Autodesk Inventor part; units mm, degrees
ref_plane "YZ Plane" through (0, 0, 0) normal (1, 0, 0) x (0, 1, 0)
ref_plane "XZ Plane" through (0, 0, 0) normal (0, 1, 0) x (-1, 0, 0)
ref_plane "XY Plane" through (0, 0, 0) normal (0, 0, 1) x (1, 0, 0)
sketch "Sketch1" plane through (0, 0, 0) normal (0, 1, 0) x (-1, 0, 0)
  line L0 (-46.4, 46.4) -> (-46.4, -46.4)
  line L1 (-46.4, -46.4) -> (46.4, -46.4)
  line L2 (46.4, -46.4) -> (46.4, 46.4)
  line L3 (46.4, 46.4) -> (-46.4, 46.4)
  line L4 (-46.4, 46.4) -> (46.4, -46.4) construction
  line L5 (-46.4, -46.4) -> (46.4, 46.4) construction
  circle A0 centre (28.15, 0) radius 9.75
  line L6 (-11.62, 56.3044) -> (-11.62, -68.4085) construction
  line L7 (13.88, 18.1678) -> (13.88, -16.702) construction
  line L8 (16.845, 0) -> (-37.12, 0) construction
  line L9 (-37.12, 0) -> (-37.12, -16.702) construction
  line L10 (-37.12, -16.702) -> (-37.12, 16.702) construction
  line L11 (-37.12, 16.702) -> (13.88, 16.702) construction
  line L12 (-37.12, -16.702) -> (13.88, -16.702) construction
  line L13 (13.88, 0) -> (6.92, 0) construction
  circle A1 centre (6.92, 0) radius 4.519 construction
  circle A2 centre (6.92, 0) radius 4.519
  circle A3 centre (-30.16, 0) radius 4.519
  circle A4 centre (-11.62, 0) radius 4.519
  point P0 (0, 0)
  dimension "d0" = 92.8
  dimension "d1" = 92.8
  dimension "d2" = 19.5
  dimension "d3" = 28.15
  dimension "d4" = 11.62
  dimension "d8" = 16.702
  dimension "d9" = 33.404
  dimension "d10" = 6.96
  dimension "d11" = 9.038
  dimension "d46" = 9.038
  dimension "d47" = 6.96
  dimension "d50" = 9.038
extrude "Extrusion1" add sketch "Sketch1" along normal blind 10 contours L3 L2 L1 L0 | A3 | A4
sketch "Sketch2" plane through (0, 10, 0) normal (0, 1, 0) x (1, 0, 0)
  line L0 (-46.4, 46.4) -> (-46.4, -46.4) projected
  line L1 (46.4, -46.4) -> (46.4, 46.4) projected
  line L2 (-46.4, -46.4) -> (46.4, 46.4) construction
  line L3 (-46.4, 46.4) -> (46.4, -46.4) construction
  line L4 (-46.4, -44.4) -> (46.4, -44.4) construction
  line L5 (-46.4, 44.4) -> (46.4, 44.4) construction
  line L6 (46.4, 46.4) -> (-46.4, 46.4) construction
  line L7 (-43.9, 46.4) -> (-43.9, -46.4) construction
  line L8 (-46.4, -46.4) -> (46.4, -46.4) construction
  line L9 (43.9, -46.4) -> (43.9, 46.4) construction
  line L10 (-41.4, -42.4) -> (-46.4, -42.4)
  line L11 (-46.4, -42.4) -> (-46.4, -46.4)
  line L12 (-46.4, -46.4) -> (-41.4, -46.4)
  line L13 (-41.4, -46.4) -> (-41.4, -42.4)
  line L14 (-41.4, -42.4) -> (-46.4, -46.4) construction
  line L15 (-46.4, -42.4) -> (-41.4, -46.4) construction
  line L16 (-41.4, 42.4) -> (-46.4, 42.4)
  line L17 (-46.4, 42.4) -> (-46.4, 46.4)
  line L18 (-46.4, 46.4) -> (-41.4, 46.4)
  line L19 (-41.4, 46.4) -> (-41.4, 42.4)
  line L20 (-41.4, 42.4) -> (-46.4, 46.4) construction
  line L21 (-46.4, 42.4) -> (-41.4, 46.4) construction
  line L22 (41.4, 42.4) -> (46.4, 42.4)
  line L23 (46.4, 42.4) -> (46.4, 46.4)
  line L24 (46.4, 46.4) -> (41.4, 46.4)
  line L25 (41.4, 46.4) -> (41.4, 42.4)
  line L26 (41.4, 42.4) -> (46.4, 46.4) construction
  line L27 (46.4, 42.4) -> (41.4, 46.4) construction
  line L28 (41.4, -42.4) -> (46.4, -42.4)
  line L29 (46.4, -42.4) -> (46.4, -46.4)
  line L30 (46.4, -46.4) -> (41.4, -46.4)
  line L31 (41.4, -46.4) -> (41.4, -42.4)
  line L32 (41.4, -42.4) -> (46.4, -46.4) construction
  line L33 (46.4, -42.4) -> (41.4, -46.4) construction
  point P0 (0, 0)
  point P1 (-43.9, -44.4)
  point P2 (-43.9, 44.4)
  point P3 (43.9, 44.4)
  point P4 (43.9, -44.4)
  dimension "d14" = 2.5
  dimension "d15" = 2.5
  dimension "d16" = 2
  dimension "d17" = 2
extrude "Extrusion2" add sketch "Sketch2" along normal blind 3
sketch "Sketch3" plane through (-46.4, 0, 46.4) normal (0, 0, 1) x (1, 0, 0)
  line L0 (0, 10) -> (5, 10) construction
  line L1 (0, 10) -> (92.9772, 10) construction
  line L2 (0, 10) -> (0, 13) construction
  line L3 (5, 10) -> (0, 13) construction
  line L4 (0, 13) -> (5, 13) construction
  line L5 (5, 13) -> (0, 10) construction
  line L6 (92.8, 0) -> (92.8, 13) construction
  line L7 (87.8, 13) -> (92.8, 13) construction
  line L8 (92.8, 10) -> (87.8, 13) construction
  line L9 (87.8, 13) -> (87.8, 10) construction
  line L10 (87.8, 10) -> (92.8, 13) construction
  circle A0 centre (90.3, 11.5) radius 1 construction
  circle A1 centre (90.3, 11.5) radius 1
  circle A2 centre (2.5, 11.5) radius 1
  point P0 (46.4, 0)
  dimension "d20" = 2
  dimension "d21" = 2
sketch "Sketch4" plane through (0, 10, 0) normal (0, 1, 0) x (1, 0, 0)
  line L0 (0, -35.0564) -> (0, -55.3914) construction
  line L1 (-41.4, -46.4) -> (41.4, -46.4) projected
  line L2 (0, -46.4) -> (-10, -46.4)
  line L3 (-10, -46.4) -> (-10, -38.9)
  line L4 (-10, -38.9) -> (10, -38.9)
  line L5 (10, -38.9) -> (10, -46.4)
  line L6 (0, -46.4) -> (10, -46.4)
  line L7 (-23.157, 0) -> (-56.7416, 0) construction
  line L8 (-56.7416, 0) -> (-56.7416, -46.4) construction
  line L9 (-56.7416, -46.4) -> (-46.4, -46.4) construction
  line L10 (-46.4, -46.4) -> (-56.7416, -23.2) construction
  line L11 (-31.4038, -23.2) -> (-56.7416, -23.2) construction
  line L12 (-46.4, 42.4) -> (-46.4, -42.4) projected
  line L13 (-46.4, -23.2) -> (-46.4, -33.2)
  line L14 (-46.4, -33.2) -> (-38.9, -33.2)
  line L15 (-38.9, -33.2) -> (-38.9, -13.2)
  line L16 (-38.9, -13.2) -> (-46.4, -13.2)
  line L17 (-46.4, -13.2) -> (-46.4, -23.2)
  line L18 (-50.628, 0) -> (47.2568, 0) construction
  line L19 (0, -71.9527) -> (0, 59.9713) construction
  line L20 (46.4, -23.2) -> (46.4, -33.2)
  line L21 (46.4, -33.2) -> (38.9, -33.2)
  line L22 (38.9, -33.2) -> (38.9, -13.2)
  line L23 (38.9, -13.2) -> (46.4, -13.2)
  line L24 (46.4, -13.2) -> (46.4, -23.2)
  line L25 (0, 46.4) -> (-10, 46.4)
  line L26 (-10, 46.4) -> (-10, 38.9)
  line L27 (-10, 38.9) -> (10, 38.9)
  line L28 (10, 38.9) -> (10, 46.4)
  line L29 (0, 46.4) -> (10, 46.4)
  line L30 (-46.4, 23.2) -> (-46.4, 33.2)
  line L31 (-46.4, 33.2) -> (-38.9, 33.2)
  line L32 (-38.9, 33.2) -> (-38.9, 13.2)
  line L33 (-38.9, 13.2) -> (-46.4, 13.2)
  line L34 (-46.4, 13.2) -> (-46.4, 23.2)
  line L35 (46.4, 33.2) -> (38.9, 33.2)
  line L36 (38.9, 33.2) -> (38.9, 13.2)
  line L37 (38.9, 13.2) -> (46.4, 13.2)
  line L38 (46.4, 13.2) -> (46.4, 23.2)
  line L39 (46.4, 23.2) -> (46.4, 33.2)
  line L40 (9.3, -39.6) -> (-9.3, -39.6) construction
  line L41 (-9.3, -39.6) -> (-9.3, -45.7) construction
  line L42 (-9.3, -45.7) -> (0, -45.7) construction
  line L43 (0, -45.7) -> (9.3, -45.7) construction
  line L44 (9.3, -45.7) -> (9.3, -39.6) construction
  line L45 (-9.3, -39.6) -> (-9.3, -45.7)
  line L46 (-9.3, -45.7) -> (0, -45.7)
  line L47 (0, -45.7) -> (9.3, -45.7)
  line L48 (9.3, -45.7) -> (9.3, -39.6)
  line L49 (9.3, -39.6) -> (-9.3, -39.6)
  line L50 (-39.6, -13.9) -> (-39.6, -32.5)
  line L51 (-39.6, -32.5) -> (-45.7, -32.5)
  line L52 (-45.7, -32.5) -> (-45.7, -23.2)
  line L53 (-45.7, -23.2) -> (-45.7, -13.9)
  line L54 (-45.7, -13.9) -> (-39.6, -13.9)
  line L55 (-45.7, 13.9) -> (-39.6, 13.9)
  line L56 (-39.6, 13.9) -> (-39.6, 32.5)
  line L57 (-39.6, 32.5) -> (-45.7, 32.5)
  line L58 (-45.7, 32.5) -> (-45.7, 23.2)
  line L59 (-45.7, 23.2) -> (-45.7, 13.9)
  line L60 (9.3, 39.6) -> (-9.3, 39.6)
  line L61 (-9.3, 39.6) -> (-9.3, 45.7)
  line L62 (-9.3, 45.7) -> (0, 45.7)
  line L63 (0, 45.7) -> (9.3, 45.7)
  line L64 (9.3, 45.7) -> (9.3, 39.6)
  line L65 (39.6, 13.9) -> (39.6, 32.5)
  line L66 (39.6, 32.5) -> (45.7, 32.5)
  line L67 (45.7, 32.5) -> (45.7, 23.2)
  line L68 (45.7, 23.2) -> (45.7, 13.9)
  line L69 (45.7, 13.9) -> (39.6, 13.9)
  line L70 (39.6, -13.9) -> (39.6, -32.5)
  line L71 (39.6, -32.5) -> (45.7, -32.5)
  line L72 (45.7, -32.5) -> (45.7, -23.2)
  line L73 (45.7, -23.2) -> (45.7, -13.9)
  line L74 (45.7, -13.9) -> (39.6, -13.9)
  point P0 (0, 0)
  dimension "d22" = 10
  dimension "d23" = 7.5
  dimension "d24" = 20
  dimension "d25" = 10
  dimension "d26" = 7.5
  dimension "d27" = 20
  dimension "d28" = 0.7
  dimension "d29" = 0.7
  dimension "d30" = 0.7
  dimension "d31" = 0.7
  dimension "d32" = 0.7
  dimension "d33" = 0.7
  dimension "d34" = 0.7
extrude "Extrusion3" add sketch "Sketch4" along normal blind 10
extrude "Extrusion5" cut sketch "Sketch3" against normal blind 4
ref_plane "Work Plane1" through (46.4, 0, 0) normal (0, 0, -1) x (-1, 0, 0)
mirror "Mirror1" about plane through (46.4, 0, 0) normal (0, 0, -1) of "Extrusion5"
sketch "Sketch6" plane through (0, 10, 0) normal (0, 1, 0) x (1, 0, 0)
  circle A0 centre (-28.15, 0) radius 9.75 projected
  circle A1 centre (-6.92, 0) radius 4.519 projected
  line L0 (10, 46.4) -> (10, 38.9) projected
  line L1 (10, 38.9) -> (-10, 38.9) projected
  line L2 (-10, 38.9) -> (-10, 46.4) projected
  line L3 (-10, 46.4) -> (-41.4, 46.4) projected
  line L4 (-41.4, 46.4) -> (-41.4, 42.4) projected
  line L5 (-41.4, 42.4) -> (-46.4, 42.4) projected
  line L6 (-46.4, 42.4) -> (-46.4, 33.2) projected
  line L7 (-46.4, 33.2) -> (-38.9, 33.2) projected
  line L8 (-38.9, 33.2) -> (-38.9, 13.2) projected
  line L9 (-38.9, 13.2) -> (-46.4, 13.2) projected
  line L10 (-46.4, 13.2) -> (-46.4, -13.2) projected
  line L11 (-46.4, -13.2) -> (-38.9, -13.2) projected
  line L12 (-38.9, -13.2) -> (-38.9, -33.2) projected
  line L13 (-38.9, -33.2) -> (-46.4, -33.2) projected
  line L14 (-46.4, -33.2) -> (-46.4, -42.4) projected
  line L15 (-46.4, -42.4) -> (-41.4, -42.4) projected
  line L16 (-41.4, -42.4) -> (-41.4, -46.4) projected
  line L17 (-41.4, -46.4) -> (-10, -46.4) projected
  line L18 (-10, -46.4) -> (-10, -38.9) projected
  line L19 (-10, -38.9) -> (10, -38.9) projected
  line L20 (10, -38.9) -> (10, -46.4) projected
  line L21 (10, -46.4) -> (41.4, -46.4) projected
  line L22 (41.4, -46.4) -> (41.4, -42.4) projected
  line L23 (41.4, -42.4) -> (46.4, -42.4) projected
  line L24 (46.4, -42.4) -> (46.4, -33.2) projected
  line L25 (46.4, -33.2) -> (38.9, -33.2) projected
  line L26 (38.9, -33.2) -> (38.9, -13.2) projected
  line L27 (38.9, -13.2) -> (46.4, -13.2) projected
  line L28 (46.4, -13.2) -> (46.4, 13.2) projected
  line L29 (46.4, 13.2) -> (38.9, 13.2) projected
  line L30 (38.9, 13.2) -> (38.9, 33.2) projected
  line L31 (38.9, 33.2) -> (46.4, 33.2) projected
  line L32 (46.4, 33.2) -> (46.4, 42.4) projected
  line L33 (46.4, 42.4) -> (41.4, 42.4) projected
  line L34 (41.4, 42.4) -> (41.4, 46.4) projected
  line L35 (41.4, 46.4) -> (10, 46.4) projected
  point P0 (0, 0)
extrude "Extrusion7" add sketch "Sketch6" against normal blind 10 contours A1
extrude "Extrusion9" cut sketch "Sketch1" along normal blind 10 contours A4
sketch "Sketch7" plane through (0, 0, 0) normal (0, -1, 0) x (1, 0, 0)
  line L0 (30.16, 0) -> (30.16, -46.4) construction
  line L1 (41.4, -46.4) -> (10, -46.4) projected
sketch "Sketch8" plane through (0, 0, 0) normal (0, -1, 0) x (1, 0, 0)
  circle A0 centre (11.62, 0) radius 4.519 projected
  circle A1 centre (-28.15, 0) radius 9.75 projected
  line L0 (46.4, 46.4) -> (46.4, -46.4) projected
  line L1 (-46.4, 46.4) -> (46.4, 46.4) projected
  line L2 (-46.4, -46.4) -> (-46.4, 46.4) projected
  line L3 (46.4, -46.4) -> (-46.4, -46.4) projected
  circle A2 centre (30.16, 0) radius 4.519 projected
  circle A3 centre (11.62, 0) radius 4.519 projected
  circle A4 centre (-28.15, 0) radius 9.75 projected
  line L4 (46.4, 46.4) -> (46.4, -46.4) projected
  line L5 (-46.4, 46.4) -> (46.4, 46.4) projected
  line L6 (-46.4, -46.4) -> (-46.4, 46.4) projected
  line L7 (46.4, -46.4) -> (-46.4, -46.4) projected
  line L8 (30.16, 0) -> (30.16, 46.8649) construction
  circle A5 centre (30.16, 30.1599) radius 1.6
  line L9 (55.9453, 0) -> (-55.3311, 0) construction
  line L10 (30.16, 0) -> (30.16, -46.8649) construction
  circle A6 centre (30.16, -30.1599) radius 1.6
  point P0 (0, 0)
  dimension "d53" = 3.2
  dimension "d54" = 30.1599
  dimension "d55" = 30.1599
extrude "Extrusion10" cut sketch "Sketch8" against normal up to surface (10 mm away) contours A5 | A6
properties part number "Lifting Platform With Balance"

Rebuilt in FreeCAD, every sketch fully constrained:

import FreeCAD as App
import Part
import Sketcher

V = App.Vector
Q = App.Units.Quantity


def add_polygon(sketch, points):
    """Adds a closed chain of lines whose ends are joined by coincident constraints."""
    first, n = sketch.GeometryCount, len(points)
    for a, b in zip(points, points[1:] + points[:1]):
        sketch.addGeometry(Part.LineSegment(App.Vector(*a, 0), App.Vector(*b, 0)), False)
    for i in range(n):
        sketch.addConstraint(Sketcher.Constraint("Coincident", first + i, 2, first + (i + 1) % n, 1))

doc = App.newDocument("Part")
body = doc.addObject("PartDesign::Body", "Body")

sketch1 = body.newObject("Sketcher::SketchObject", "Sketch")
sketch1.AttachmentSupport = (doc.getObject("XZ_Plane"), [""])
sketch1.MapMode = "FlatFace"
add_polygon(sketch1, [(-46.4, 46.4), (46.4, 46.4), (46.4, -46.4), (-46.4, -46.4)])
sketch1.addGeometry(Part.Circle(V(-6.9, 0, 0), V(0, 0, 1), 4.5), False)
sketch1.addGeometry(Part.Circle(V(-28.1, 0, 0), V(0, 0, 1), 9.8), False)
sketch1.addConstraint(Sketcher.Constraint("Horizontal", 0))
sketch1.addConstraint(Sketcher.Constraint("Vertical", 1))
sketch1.addConstraint(Sketcher.Constraint("Horizontal", 2))
sketch1.addConstraint(Sketcher.Constraint("Vertical", 3))
sketch1.addConstraint(Sketcher.Constraint("Symmetric", 0, 2, 2, 2, -1, 1))
sketch1.addConstraint(Sketcher.Constraint("PointOnObject", 4, 3, -1))
sketch1.addConstraint(Sketcher.Constraint("PointOnObject", 5, 3, -1))
sketch1.addConstraint(Sketcher.Constraint("Equal", 2, 1))
sketch1.addConstraint(Sketcher.Constraint("Diameter", 5, Q("19.5 mm")))
sketch1.addConstraint(Sketcher.Constraint("Diameter", 4, Q("9.038 mm")))
sketch1.addConstraint(Sketcher.Constraint("DistanceX", 0, 1, 0, 2, Q("92.8 mm")))
sketch1.addConstraint(Sketcher.Constraint("DistanceX", 5, 3, -1, 1, Q("28.15 mm")))
sketch1.addConstraint(Sketcher.Constraint("DistanceX", 4, 3, -1, 1, Q("6.92 mm")))
pad1 = body.newObject("PartDesign::Pad", "Pad")
pad1.Profile = sketch1
pad1.Length = 10
pad1.Reversed = True

sketch2 = body.newObject("Sketcher::SketchObject", "Sketch001")
sketch2.AttachmentSupport = (doc.getObject("XZ_Plane"), [""])
sketch2.MapMode = "FlatFace"
sketch2.AttachmentOffset = App.Placement(V(0, 0, -10), App.Rotation())
add_polygon(sketch2, [(-41.4, -46.4), (-46.4, -46.4), (-46.4, -42.4), (-41.4, -42.4)])
add_polygon(sketch2, [(-41.4, 42.4), (-46.4, 42.4), (-46.4, 46.4), (-41.4, 46.4)])
add_polygon(sketch2, [(41.4, 46.4), (46.4, 46.4), (46.4, 42.4), (41.4, 42.4)])
add_polygon(sketch2, [(41.4, -42.4), (46.4, -42.4), (46.4, -46.4), (41.4, -46.4)])
sketch2.addConstraint(Sketcher.Constraint("Horizontal", 0))
sketch2.addConstraint(Sketcher.Constraint("Vertical", 1))
sketch2.addConstraint(Sketcher.Constraint("Horizontal", 2))
sketch2.addConstraint(Sketcher.Constraint("Vertical", 3))
sketch2.addConstraint(Sketcher.Constraint("Horizontal", 4))
sketch2.addConstraint(Sketcher.Constraint("Vertical", 5))
sketch2.addConstraint(Sketcher.Constraint("Horizontal", 6))
sketch2.addConstraint(Sketcher.Constraint("Vertical", 7))
sketch2.addConstraint(Sketcher.Constraint("Horizontal", 8))
sketch2.addConstraint(Sketcher.Constraint("Vertical", 9))
sketch2.addConstraint(Sketcher.Constraint("Horizontal", 10))
sketch2.addConstraint(Sketcher.Constraint("Vertical", 11))
sketch2.addConstraint(Sketcher.Constraint("Horizontal", 12))
sketch2.addConstraint(Sketcher.Constraint("Vertical", 13))
sketch2.addConstraint(Sketcher.Constraint("Horizontal", 14))
sketch2.addConstraint(Sketcher.Constraint("Vertical", 15))
sketch2.addConstraint(Sketcher.Constraint("Symmetric", 0, 2, 8, 2, -1, 1))
sketch2.addConstraint(Sketcher.Constraint("Symmetric", 2, 2, 10, 2, -1, 1))
sketch2.addConstraint(Sketcher.Constraint("Symmetric", 4, 2, 12, 2, -1, 1))
sketch2.addConstraint(Sketcher.Constraint("Symmetric", 6, 2, 14, 2, -1, 1))
sketch2.addConstraint(Sketcher.Constraint("Symmetric", 5, 2, 8, 2, -2))
sketch2.addConstraint(Sketcher.Constraint("Symmetric", 7, 2, 10, 2, -2))
sketch2.addConstraint(Sketcher.Constraint("DistanceX", 0, 2, 0, 1, Q("5 mm")))
sketch2.addConstraint(Sketcher.Constraint("DistanceY", 1, 1, 1, 2, Q("4 mm")))
sketch2.addConstraint(Sketcher.Constraint("DistanceX", 0, 2, -1, 1, Q("46.4 mm")))
sketch2.addConstraint(Sketcher.Constraint("DistanceY", 0, 2, -1, 1, Q("46.4 mm")))
pad2 = body.newObject("PartDesign::Pad", "Pad001")
pad2.Profile = sketch2
pad2.Length = 3
pad2.Reversed = True

sketch3 = body.newObject("Sketcher::SketchObject", "Sketch002")
sketch3.AttachmentSupport = (doc.getObject("XZ_Plane"), [""])
sketch3.MapMode = "FlatFace"
sketch3.AttachmentOffset = App.Placement(V(0, 0, -10), App.Rotation())
add_polygon(sketch3, [(-10, 39), (-10, 46), (10, 46), (10, 39)])
add_polygon(sketch3, [(-9, 46), (-9, 40), (9, 40), (9, 46)])
add_polygon(sketch3, [(-39, -33), (-46, -33), (-46, -13), (-39, -13)])
add_polygon(sketch3, [(-40, -14), (-46, -14), (-46, -32), (-40, -32)])
add_polygon(sketch3, [(-39, 13), (-46, 13), (-46, 33), (-39, 33)])
add_polygon(sketch3, [(-46, 14), (-40, 14), (-40, 32), (-46, 32)])
add_polygon(sketch3, [(46, 33), (46, 13), (39, 13), (39, 33)])
add_polygon(sketch3, [(40, 32), (40, 14), (46, 14), (46, 32)])
add_polygon(sketch3, [(10, -46), (-10, -46), (-10, -39), (10, -39)])
add_polygon(sketch3, [(9, -46), (9, -40), (-9, -40), (-9, -46)])
add_polygon(sketch3, [(46, -13), (46, -33), (39, -33), (39, -13)])
add_polygon(sketch3, [(46, -14), (40, -14), (40, -32), (46, -32)])
sketch3.addConstraint(Sketcher.Constraint("Vertical", 0))
sketch3.addConstraint(Sketcher.Constraint("Horizontal", 1))
sketch3.addConstraint(Sketcher.Constraint("Vertical", 2))
sketch3.addConstraint(Sketcher.Constraint("Horizontal", 3))
sketch3.addConstraint(Sketcher.Constraint("Vertical", 4))
sketch3.addConstraint(Sketcher.Constraint("Horizontal", 5))
sketch3.addConstraint(Sketcher.Constraint("Vertical", 6))
sketch3.addConstraint(Sketcher.Constraint("Horizontal", 7))
sketch3.addConstraint(Sketcher.Constraint("Horizontal", 8))
sketch3.addConstraint(Sketcher.Constraint("Vertical", 9))
sketch3.addConstraint(Sketcher.Constraint("Horizontal", 10))
sketch3.addConstraint(Sketcher.Constraint("Vertical", 11))
sketch3.addConstraint(Sketcher.Constraint("Horizontal", 12))
sketch3.addConstraint(Sketcher.Constraint("Vertical", 13))
sketch3.addConstraint(Sketcher.Constraint("Horizontal", 14))
sketch3.addConstraint(Sketcher.Constraint("Vertical", 15))
sketch3.addConstraint(Sketcher.Constraint("Horizontal", 16))
sketch3.addConstraint(Sketcher.Constraint("Vertical", 17))
sketch3.addConstraint(Sketcher.Constraint("Horizontal", 18))
sketch3.addConstraint(Sketcher.Constraint("Vertical", 19))
sketch3.addConstraint(Sketcher.Constraint("Horizontal", 20))
sketch3.addConstraint(Sketcher.Constraint("Vertical", 21))
sketch3.addConstraint(Sketcher.Constraint("Horizontal", 22))
sketch3.addConstraint(Sketcher.Constraint("Vertical", 23))
sketch3.addConstraint(Sketcher.Constraint("Vertical", 24))
sketch3.addConstraint(Sketcher.Constraint("Horizontal", 25))
sketch3.addConstraint(Sketcher.Constraint("Vertical", 26))
sketch3.addConstraint(Sketcher.Constraint("Horizontal", 27))
sketch3.addConstraint(Sketcher.Constraint("Vertical", 28))
sketch3.addConstraint(Sketcher.Constraint("Horizontal", 29))
sketch3.addConstraint(Sketcher.Constraint("Vertical", 30))
sketch3.addConstraint(Sketcher.Constraint("Horizontal", 31))
sketch3.addConstraint(Sketcher.Constraint("Horizontal", 32))
sketch3.addConstraint(Sketcher.Constraint("Vertical", 33))
sketch3.addConstraint(Sketcher.Constraint("Horizontal", 34))
sketch3.addConstraint(Sketcher.Constraint("Vertical", 35))
sketch3.addConstraint(Sketcher.Constraint("Vertical", 36))
sketch3.addConstraint(Sketcher.Constraint("Horizontal", 37))
sketch3.addConstraint(Sketcher.Constraint("Vertical", 38))
sketch3.addConstraint(Sketcher.Constraint("Horizontal", 39))
sketch3.addConstraint(Sketcher.Constraint("Vertical", 40))
sketch3.addConstraint(Sketcher.Constraint("Horizontal", 41))
sketch3.addConstraint(Sketcher.Constraint("Vertical", 42))
sketch3.addConstraint(Sketcher.Constraint("Horizontal", 43))
sketch3.addConstraint(Sketcher.Constraint("Horizontal", 44))
sketch3.addConstraint(Sketcher.Constraint("Vertical", 45))
sketch3.addConstraint(Sketcher.Constraint("Horizontal", 46))
sketch3.addConstraint(Sketcher.Constraint("Vertical", 47))
sketch3.addConstraint(Sketcher.Constraint("Symmetric", 9, 2, 24, 2, -1, 1))
sketch3.addConstraint(Sketcher.Constraint("Symmetric", 11, 2, 26, 2, -1, 1))
sketch3.addConstraint(Sketcher.Constraint("Symmetric", 15, 2, 28, 2, -1, 1))
sketch3.addConstraint(Sketcher.Constraint("Symmetric", 13, 2, 30, 2, -1, 1))
sketch3.addConstraint(Sketcher.Constraint("Symmetric", 1, 2, 32, 2, -1, 1))
sketch3.addConstraint(Sketcher.Constraint("Symmetric", 3, 2, 34, 2, -1, 1))
sketch3.addConstraint(Sketcher.Constraint("Symmetric", 4, 2, 36, 2, -1, 1))
sketch3.addConstraint(Sketcher.Constraint("Symmetric", 6, 2, 38, 2, -1, 1))
sketch3.addConstraint(Sketcher.Constraint("Symmetric", 17, 2, 40, 2, -1, 1))
sketch3.addConstraint(Sketcher.Constraint("Symmetric", 19, 2, 42, 2, -1, 1))
sketch3.addConstraint(Sketcher.Constraint("Symmetric", 20, 2, 44, 2, -1, 1))
sketch3.addConstraint(Sketcher.Constraint("Symmetric", 22, 2, 46, 2, -1, 1))
sketch3.addConstraint(Sketcher.Constraint("Symmetric", 16, 2, 24, 2, -2))
sketch3.addConstraint(Sketcher.Constraint("Symmetric", 18, 2, 26, 2, -2))
sketch3.addConstraint(Sketcher.Constraint("Symmetric", 20, 2, 28, 2, -2))
sketch3.addConstraint(Sketcher.Constraint("Symmetric", 22, 2, 30, 2, -2))
sketch3.addConstraint(Sketcher.Constraint("Vertical", 3, 2, 32, 2))
sketch3.addConstraint(Sketcher.Constraint("Vertical", 6, 2, 36, 2))
sketch3.addConstraint(Sketcher.Constraint("Equal", 43, 0))
sketch3.addConstraint(Sketcher.Constraint("Equal", 46, 4))
sketch3.addConstraint(Sketcher.Constraint("Equal", 34, 9))
sketch3.addConstraint(Sketcher.Constraint("Equal", 39, 13))
sketch3.addConstraint(Sketcher.Constraint("DistanceX", 1, 1, 1, 2, Q("20 mm")))
sketch3.addConstraint(Sketcher.Constraint("DistanceX", 8, 2, 8, 1, Q("7.5 mm")))
sketch3.addConstraint(Sketcher.Constraint("DistanceX", 3, 2, 4, 2, Q("0.7 mm")))
sketch3.addConstraint(Sketcher.Constraint("DistanceY", 3, 2, 4, 2, Q("0.7 mm")))
sketch3.addConstraint(Sketcher.Constraint("DistanceY", 6, 2, 1, 2, Q("0.7 mm")))
sketch3.addConstraint(Sketcher.Constraint("DistanceX", 9, 2, 12, 2, Q("0.7 mm")))
sketch3.addConstraint(Sketcher.Constraint("DistanceY", 12, 2, 9, 2, Q("0.7 mm")))
sketch3.addConstraint(Sketcher.Constraint("DistanceY", 28, 2, 2, 2, Q("25 mm")))
sketch3.addConstraint(Sketcher.Constraint("DistanceY", -1, 1, 0, 2, Q("46.4 mm")))
sketch3.addConstraint(Sketcher.Constraint("DistanceX", 8, 2, -1, 1, Q("46.4 mm")))
pad3 = body.newObject("PartDesign::Pad", "Pad002")
pad3.Profile = sketch3
pad3.Length = 10
pad3.Reversed = True

sketch4 = body.newObject("Sketcher::SketchObject", "Sketch003")
sketch4.AttachmentSupport = (doc.getObject("XY_Plane"), [""])
sketch4.MapMode = "FlatFace"
sketch4.AttachmentOffset = App.Placement(V(0, 0, 46.4), App.Rotation())
sketch4.addGeometry(Part.Circle(V(43.9, 11.5, 0), V(0, 0, 1), 1), False)
sketch4.addGeometry(Part.Circle(V(-43.9, 11.5, 0), V(0, 0, 1), 1), False)
sketch4.addConstraint(Sketcher.Constraint("Equal", 0, 1))
sketch4.addConstraint(Sketcher.Constraint("Symmetric", 0, 3, 1, 3, -2))
sketch4.addConstraint(Sketcher.Constraint("Diameter", 0, Q("2 mm")))
sketch4.addConstraint(Sketcher.Constraint("DistanceX", -1, 1, 0, 3, Q("43.9 mm")))
sketch4.addConstraint(Sketcher.Constraint("DistanceY", -1, 1, 0, 3, Q("11.5 mm")))
pocket1 = body.newObject("PartDesign::Pocket", "Pocket")
pocket1.Profile = sketch4
pocket1.Length = 4
doc.recompute()

mirrored = body.newObject("PartDesign::Mirrored", "Mirrored")
mirrored.Originals = [pocket1]
mirrored.MirrorPlane = (doc.getObject("XY_Plane"), [""])
body.Tip = mirrored

sketch5 = body.newObject("Sketcher::SketchObject", "Sketch004")
sketch5.AttachmentSupport = (doc.getObject("XZ_Plane"), [""])
sketch5.MapMode = "FlatFace"
sketch5.AttachmentOffset = App.Placement(V(0, 0, -10), App.Rotation())
sketch5.addGeometry(Part.Circle(V(-6.9, 0, 0), V(0, 0, 1), 4.5), False)
sketch5.addConstraint(Sketcher.Constraint("PointOnObject", 0, 3, -1))
sketch5.addConstraint(Sketcher.Constraint("Diameter", 0, Q("9.038 mm")))
sketch5.addConstraint(Sketcher.Constraint("DistanceX", 0, 3, -1, 1, Q("6.92 mm")))
pad4 = body.newObject("PartDesign::Pad", "Pad003")
pad4.Profile = sketch5
pad4.Length = 10

sketch6 = body.newObject("Sketcher::SketchObject", "Sketch005")
sketch6.AttachmentSupport = (doc.getObject("XZ_Plane"), [""])
sketch6.MapMode = "FlatFace"
sketch6.addGeometry(Part.Circle(V(11.6, 0, 0), V(0, 0, 1), 4.5), False)
sketch6.addConstraint(Sketcher.Constraint("PointOnObject", 0, 3, -1))
sketch6.addConstraint(Sketcher.Constraint("Diameter", 0, Q("9.038 mm")))
sketch6.addConstraint(Sketcher.Constraint("DistanceX", -1, 1, 0, 3, Q("11.62 mm")))
pocket2 = body.newObject("PartDesign::Pocket", "Pocket001")
pocket2.Profile = sketch6
pocket2.Length = 10

sketch7 = body.newObject("Sketcher::SketchObject", "Sketch006")
sketch7.AttachmentSupport = (doc.getObject("XZ_Plane"), [""])
sketch7.MapMode = "FlatFace"
sketch7.addGeometry(Part.Circle(V(30.2, 30.2, 0), V(0, 0, 1), 1.6), False)
sketch7.addGeometry(Part.Circle(V(30.2, -30.2, 0), V(0, 0, 1), 1.6), False)
sketch7.addConstraint(Sketcher.Constraint("Equal", 0, 1))
sketch7.addConstraint(Sketcher.Constraint("Symmetric", 0, 3, 1, 3, -1))
sketch7.addConstraint(Sketcher.Constraint("Diameter", 0, Q("3.2 mm")))
sketch7.addConstraint(Sketcher.Constraint("DistanceX", -1, 1, 0, 3, Q("30.16 mm")))
sketch7.addConstraint(Sketcher.Constraint("DistanceY", -1, 1, 0, 3, Q("30.16 mm")))
pocket3 = body.newObject("PartDesign::Pocket", "Pocket002")
pocket3.Profile = sketch7
pocket3.Length = 10

doc.recompute()
